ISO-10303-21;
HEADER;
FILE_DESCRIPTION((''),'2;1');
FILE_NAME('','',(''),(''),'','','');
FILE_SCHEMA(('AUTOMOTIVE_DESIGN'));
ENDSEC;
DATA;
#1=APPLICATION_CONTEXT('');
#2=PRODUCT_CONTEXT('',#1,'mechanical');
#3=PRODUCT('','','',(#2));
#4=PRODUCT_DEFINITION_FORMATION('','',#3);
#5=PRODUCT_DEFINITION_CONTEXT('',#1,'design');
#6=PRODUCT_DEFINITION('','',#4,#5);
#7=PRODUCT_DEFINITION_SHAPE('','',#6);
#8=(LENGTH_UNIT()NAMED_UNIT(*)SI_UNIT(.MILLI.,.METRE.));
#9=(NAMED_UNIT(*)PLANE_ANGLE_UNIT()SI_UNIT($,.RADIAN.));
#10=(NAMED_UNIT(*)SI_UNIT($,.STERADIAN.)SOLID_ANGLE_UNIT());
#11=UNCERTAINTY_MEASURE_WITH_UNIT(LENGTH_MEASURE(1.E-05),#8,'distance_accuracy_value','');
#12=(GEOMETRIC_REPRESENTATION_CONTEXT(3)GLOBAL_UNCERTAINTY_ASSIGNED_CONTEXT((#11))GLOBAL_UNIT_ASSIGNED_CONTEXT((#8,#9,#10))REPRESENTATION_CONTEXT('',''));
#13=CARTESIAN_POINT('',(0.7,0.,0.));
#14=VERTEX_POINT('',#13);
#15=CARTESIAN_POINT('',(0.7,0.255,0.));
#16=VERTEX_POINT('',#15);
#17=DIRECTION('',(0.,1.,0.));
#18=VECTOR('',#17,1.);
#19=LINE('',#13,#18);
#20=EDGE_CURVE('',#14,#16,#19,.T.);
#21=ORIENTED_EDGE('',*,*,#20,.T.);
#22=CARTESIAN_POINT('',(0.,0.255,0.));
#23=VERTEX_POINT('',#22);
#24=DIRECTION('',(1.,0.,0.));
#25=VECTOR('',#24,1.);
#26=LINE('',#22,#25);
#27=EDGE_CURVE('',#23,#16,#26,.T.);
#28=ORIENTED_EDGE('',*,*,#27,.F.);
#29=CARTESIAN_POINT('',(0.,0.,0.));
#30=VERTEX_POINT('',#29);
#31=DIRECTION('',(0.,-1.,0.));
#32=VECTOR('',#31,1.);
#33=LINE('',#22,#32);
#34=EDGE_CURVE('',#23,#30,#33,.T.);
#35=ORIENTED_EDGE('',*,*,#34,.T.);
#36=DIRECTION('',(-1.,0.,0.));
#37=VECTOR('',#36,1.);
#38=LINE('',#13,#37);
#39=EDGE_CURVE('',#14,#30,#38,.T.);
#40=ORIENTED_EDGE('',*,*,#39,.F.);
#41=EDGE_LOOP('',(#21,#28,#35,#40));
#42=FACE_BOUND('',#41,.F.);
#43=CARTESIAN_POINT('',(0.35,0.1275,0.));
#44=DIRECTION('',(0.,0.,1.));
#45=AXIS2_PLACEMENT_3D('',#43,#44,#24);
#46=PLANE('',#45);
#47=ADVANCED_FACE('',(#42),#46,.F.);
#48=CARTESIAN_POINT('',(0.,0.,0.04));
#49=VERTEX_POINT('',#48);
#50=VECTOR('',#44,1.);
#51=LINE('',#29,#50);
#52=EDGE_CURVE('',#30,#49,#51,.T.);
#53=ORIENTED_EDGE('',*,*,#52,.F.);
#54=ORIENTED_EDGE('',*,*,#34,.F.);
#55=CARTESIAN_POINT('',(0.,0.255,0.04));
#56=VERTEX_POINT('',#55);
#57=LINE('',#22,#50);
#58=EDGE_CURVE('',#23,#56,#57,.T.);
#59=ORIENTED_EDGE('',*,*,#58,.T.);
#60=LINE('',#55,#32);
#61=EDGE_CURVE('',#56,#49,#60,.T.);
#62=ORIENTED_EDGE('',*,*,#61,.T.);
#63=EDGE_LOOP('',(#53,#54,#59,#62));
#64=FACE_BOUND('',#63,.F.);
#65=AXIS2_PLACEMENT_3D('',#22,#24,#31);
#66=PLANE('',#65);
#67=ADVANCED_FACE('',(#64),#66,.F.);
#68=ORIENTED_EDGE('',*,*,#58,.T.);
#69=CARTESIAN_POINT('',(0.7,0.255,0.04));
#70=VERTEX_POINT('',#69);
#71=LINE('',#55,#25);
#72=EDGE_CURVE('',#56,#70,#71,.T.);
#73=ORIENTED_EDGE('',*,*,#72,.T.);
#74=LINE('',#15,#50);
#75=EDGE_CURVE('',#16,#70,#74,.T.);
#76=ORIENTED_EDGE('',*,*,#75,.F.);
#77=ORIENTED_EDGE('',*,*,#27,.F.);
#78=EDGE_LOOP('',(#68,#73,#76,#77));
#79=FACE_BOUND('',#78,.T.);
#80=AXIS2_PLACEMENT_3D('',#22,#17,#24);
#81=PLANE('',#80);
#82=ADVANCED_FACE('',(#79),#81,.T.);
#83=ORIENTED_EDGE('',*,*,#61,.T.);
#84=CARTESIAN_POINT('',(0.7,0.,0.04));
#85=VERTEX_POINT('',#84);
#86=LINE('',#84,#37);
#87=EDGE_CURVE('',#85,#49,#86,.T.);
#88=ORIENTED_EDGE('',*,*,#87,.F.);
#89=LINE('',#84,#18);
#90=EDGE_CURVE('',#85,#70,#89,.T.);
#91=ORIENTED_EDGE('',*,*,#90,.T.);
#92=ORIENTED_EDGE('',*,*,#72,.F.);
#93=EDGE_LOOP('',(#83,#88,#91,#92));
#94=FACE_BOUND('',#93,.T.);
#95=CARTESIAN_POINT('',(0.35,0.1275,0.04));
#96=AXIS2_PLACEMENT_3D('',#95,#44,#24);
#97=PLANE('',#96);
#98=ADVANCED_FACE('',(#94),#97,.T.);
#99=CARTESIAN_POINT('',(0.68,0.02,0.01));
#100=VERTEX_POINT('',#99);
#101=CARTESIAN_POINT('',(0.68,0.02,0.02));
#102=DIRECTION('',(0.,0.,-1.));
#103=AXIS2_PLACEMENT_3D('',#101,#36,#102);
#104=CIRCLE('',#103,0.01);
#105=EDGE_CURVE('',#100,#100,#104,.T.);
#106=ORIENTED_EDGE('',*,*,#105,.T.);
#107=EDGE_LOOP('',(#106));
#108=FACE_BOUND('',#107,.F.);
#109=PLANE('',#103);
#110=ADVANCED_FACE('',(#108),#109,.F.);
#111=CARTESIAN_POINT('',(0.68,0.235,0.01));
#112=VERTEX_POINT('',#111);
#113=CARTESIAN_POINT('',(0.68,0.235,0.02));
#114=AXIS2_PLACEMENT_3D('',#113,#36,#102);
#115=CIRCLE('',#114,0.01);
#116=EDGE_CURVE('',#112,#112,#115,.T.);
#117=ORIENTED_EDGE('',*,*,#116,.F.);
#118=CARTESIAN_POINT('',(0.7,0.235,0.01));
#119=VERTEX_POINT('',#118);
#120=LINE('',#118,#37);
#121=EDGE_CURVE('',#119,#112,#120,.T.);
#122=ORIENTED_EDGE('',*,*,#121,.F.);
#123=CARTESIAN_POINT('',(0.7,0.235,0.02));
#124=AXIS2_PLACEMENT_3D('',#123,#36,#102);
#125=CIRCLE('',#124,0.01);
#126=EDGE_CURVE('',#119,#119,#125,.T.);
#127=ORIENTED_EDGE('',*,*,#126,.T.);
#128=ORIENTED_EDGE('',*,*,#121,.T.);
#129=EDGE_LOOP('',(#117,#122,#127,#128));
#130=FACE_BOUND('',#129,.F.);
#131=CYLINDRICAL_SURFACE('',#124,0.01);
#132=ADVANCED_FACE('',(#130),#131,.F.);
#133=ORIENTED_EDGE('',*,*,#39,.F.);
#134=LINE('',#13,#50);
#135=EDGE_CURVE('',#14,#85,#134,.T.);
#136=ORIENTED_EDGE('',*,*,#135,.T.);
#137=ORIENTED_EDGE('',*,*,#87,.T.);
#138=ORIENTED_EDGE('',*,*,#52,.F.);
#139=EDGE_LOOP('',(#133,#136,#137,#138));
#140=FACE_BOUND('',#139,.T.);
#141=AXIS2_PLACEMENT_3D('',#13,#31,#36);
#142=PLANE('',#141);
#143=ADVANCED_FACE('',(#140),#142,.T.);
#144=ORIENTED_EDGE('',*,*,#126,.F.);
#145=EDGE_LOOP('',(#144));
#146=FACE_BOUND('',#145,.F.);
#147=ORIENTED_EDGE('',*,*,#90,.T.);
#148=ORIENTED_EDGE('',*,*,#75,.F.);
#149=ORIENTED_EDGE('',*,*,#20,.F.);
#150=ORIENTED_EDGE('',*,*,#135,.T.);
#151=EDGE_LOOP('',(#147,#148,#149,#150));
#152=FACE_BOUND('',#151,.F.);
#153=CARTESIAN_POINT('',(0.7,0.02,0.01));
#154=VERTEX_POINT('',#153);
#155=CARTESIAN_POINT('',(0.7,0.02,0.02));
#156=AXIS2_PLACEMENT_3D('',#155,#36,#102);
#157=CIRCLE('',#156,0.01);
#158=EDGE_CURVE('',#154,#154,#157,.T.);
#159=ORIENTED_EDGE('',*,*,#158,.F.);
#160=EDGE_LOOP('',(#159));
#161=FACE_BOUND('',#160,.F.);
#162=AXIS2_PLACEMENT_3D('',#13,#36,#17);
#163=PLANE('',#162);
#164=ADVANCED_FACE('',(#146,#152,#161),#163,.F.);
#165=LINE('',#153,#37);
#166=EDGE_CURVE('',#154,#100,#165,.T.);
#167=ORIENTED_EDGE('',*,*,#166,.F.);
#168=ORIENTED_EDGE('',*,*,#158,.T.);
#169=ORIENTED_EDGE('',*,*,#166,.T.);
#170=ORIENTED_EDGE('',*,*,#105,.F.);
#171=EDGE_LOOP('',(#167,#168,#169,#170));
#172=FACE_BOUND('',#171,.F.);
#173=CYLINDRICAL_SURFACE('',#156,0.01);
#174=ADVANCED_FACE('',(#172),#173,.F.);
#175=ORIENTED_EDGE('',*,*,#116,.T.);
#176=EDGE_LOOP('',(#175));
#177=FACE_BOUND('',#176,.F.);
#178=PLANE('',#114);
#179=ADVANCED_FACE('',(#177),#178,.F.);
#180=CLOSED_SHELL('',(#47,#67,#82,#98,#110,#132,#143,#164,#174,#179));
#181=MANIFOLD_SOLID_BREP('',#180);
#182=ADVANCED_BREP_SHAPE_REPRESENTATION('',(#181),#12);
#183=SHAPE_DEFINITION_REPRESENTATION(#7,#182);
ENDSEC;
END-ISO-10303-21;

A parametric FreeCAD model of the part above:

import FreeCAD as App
import Part
import Sketcher


def add_polygon(sketch, points):
    """Adds a closed chain of lines whose ends are joined by coincident constraints."""
    first, n = sketch.GeometryCount, len(points)
    for a, b in zip(points, points[1:] + points[:1]):
        sketch.addGeometry(Part.LineSegment(App.Vector(*a, 0), App.Vector(*b, 0)), False)
    for i in range(n):
        sketch.addConstraint(Sketcher.Constraint("Coincident", first + i, 2, first + (i + 1) % n, 1))

doc = App.newDocument("Part")
params = doc.addObject("Spreadsheet::Sheet", "Params")
for row, (alias, value) in enumerate([
    ("sketch1_width", "0.7 mm"),
    ("pad1_length", "0.04 mm"),
    ("sketch2_diameter", "0.02 mm"),
    ("hole_diameter", "0.02 mm"),
    ("hole_depth", "0.02 mm"),
    ("sketch3_diameter", "0.02 mm"),
    ("hole2_diameter", "0.02 mm"),
    ("hole2_depth", "0.02 mm"),
], start=1):
    params.set(f"A{row}", alias)
    params.set(f"B{row}", "=" + value)
    params.setAlias(f"B{row}", alias)

body = doc.addObject("PartDesign::Body", "Body")

sketch1 = body.newObject("Sketcher::SketchObject", "Sketch")
sketch1.AttachmentSupport = (doc.getObject("XY_Plane"), [""])
sketch1.MapMode = "FlatFace"
add_polygon(sketch1, [(0.7, 0.26), (0, 0.26), (0, 0), (0.7, 0)])
sketch1.addConstraint(Sketcher.Constraint("Horizontal", 0))
sketch1.addConstraint(Sketcher.Constraint("Vertical", 1))
sketch1.addConstraint(Sketcher.Constraint("Horizontal", 2))
sketch1.addConstraint(Sketcher.Constraint("Vertical", 3))
sketch1.addConstraint(Sketcher.Constraint("Coincident", 1, 2, -1, 1))
sketch1.addConstraint(Sketcher.Constraint("DistanceX", 0, 2, 0, 1, 0.7))
sketch1.addConstraint(Sketcher.Constraint("DistanceY", 1, 2, 1, 1, 0.255))
sketch1.setExpression("Constraints[9]", "Params.sketch1_width")
pad1 = body.newObject("PartDesign::Pad", "Pad")
pad1.Profile = sketch1
pad1.setExpression("Length", "Params.pad1_length")

sketch2 = body.newObject("Sketcher::SketchObject", "Sketch001")
sketch2.AttachmentSupport = (doc.getObject("YZ_Plane"), [""])
sketch2.MapMode = "FlatFace"
sketch2.AttachmentOffset = App.Placement(App.Vector(0, 0, 0.7), App.Rotation())
sketch2.addGeometry(Part.Circle(App.Vector(0.02, 0.02, 0), App.Vector(0, 0, 1), 0.01), False)
sketch2.addConstraint(Sketcher.Constraint("Diameter", 0, 0.02))
sketch2.addConstraint(Sketcher.Constraint("DistanceX", -1, 1, 0, 3, 0.02))
sketch2.addConstraint(Sketcher.Constraint("DistanceY", -1, 1, 0, 3, 0.02))
sketch2.setExpression("Constraints[0]", "Params.sketch2_diameter")
doc.recompute()
hole = body.newObject("PartDesign::Hole", "Hole")
hole.Profile = sketch2
hole.ThreadType = "None"
hole.setExpression("Diameter", "Params.hole_diameter")
hole.DepthType = "Dimension"
hole.setExpression("Depth", "Params.hole_depth")
hole.DrillPoint = "Flat"

sketch3 = body.newObject("Sketcher::SketchObject", "Sketch002")
sketch3.AttachmentSupport = (doc.getObject("YZ_Plane"), [""])
sketch3.MapMode = "FlatFace"
sketch3.AttachmentOffset = App.Placement(App.Vector(0, 0, 0.7), App.Rotation())
sketch3.addGeometry(Part.Circle(App.Vector(0.235, 0.02, 0), App.Vector(0, 0, 1), 0.01), False)
sketch3.addConstraint(Sketcher.Constraint("Diameter", 0, 0.02))
sketch3.addConstraint(Sketcher.Constraint("DistanceY", -1, 1, 0, 3, 0.02))
sketch3.addConstraint(Sketcher.Constraint("DistanceX", -1, 1, 0, 3, 0.235))
sketch3.setExpression("Constraints[0]", "Params.sketch3_diameter")
doc.recompute()
hole2 = body.newObject("PartDesign::Hole", "Hole001")
hole2.Profile = sketch3
hole2.ThreadType = "None"
hole2.setExpression("Diameter", "Params.hole2_diameter")
hole2.DepthType = "Dimension"
hole2.setExpression("Depth", "Params.hole2_depth")
hole2.DrillPoint = "Flat"

doc.recompute()
